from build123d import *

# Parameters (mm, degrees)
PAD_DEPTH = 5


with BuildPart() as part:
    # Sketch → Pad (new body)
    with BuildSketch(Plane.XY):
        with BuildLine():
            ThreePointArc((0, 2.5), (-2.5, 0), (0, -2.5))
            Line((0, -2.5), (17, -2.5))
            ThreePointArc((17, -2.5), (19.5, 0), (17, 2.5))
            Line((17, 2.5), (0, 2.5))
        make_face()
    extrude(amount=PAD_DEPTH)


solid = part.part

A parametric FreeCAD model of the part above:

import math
import FreeCAD as App
import Part
import Sketcher
from FreeCAD import Vector
Q = App.Units.Quantity

doc = App.newDocument("Part")
body = doc.addObject("PartDesign::Body", "Body")

sketch1 = body.newObject("Sketcher::SketchObject", "Sketch")
sketch1.AttachmentSupport = (doc.getObject("XY_Plane"), [""])
sketch1.MapMode = "FlatFace"
sketch1.addGeometry(Part.ArcOfCircle(Part.Circle(Vector(0, 0, 0), Vector(0, 0, 1), 2.5), math.radians(90), math.radians(270)), False)
sketch1.addGeometry(Part.LineSegment(Vector(0, -2.5, 0), Vector(17, -2.5, 0)), False)
sketch1.addGeometry(Part.ArcOfCircle(Part.Circle(Vector(17, 0, 0), Vector(0, 0, 1), 2.5), math.radians(-90), math.radians(90)), False)
sketch1.addGeometry(Part.LineSegment(Vector(17, 2.5, 0), Vector(0, 2.5, 0)), False)
sketch1.addConstraint(Sketcher.Constraint("Tangent", 0, 2, 1, 1))
sketch1.addConstraint(Sketcher.Constraint("Tangent", 1, 2, 2, 1))
sketch1.addConstraint(Sketcher.Constraint("Tangent", 2, 2, 3, 1))
sketch1.addConstraint(Sketcher.Constraint("Tangent", 3, 2, 0, 1))
sketch1.addConstraint(Sketcher.Constraint("Horizontal", 1))
sketch1.addConstraint(Sketcher.Constraint("Horizontal", 3))
sketch1.addConstraint(Sketcher.Constraint("Coincident", 0, 3, -1, 1))
sketch1.addConstraint(Sketcher.Constraint("Radius", 0, Q("2.5 mm")))
sketch1.addConstraint(Sketcher.Constraint("DistanceX", 1, 1, 1, 2, Q("17 mm")))
pad1 = body.newObject("PartDesign::Pad", "Pad")
pad1.Profile = sketch1
pad1.Length = 5

doc.recompute()
